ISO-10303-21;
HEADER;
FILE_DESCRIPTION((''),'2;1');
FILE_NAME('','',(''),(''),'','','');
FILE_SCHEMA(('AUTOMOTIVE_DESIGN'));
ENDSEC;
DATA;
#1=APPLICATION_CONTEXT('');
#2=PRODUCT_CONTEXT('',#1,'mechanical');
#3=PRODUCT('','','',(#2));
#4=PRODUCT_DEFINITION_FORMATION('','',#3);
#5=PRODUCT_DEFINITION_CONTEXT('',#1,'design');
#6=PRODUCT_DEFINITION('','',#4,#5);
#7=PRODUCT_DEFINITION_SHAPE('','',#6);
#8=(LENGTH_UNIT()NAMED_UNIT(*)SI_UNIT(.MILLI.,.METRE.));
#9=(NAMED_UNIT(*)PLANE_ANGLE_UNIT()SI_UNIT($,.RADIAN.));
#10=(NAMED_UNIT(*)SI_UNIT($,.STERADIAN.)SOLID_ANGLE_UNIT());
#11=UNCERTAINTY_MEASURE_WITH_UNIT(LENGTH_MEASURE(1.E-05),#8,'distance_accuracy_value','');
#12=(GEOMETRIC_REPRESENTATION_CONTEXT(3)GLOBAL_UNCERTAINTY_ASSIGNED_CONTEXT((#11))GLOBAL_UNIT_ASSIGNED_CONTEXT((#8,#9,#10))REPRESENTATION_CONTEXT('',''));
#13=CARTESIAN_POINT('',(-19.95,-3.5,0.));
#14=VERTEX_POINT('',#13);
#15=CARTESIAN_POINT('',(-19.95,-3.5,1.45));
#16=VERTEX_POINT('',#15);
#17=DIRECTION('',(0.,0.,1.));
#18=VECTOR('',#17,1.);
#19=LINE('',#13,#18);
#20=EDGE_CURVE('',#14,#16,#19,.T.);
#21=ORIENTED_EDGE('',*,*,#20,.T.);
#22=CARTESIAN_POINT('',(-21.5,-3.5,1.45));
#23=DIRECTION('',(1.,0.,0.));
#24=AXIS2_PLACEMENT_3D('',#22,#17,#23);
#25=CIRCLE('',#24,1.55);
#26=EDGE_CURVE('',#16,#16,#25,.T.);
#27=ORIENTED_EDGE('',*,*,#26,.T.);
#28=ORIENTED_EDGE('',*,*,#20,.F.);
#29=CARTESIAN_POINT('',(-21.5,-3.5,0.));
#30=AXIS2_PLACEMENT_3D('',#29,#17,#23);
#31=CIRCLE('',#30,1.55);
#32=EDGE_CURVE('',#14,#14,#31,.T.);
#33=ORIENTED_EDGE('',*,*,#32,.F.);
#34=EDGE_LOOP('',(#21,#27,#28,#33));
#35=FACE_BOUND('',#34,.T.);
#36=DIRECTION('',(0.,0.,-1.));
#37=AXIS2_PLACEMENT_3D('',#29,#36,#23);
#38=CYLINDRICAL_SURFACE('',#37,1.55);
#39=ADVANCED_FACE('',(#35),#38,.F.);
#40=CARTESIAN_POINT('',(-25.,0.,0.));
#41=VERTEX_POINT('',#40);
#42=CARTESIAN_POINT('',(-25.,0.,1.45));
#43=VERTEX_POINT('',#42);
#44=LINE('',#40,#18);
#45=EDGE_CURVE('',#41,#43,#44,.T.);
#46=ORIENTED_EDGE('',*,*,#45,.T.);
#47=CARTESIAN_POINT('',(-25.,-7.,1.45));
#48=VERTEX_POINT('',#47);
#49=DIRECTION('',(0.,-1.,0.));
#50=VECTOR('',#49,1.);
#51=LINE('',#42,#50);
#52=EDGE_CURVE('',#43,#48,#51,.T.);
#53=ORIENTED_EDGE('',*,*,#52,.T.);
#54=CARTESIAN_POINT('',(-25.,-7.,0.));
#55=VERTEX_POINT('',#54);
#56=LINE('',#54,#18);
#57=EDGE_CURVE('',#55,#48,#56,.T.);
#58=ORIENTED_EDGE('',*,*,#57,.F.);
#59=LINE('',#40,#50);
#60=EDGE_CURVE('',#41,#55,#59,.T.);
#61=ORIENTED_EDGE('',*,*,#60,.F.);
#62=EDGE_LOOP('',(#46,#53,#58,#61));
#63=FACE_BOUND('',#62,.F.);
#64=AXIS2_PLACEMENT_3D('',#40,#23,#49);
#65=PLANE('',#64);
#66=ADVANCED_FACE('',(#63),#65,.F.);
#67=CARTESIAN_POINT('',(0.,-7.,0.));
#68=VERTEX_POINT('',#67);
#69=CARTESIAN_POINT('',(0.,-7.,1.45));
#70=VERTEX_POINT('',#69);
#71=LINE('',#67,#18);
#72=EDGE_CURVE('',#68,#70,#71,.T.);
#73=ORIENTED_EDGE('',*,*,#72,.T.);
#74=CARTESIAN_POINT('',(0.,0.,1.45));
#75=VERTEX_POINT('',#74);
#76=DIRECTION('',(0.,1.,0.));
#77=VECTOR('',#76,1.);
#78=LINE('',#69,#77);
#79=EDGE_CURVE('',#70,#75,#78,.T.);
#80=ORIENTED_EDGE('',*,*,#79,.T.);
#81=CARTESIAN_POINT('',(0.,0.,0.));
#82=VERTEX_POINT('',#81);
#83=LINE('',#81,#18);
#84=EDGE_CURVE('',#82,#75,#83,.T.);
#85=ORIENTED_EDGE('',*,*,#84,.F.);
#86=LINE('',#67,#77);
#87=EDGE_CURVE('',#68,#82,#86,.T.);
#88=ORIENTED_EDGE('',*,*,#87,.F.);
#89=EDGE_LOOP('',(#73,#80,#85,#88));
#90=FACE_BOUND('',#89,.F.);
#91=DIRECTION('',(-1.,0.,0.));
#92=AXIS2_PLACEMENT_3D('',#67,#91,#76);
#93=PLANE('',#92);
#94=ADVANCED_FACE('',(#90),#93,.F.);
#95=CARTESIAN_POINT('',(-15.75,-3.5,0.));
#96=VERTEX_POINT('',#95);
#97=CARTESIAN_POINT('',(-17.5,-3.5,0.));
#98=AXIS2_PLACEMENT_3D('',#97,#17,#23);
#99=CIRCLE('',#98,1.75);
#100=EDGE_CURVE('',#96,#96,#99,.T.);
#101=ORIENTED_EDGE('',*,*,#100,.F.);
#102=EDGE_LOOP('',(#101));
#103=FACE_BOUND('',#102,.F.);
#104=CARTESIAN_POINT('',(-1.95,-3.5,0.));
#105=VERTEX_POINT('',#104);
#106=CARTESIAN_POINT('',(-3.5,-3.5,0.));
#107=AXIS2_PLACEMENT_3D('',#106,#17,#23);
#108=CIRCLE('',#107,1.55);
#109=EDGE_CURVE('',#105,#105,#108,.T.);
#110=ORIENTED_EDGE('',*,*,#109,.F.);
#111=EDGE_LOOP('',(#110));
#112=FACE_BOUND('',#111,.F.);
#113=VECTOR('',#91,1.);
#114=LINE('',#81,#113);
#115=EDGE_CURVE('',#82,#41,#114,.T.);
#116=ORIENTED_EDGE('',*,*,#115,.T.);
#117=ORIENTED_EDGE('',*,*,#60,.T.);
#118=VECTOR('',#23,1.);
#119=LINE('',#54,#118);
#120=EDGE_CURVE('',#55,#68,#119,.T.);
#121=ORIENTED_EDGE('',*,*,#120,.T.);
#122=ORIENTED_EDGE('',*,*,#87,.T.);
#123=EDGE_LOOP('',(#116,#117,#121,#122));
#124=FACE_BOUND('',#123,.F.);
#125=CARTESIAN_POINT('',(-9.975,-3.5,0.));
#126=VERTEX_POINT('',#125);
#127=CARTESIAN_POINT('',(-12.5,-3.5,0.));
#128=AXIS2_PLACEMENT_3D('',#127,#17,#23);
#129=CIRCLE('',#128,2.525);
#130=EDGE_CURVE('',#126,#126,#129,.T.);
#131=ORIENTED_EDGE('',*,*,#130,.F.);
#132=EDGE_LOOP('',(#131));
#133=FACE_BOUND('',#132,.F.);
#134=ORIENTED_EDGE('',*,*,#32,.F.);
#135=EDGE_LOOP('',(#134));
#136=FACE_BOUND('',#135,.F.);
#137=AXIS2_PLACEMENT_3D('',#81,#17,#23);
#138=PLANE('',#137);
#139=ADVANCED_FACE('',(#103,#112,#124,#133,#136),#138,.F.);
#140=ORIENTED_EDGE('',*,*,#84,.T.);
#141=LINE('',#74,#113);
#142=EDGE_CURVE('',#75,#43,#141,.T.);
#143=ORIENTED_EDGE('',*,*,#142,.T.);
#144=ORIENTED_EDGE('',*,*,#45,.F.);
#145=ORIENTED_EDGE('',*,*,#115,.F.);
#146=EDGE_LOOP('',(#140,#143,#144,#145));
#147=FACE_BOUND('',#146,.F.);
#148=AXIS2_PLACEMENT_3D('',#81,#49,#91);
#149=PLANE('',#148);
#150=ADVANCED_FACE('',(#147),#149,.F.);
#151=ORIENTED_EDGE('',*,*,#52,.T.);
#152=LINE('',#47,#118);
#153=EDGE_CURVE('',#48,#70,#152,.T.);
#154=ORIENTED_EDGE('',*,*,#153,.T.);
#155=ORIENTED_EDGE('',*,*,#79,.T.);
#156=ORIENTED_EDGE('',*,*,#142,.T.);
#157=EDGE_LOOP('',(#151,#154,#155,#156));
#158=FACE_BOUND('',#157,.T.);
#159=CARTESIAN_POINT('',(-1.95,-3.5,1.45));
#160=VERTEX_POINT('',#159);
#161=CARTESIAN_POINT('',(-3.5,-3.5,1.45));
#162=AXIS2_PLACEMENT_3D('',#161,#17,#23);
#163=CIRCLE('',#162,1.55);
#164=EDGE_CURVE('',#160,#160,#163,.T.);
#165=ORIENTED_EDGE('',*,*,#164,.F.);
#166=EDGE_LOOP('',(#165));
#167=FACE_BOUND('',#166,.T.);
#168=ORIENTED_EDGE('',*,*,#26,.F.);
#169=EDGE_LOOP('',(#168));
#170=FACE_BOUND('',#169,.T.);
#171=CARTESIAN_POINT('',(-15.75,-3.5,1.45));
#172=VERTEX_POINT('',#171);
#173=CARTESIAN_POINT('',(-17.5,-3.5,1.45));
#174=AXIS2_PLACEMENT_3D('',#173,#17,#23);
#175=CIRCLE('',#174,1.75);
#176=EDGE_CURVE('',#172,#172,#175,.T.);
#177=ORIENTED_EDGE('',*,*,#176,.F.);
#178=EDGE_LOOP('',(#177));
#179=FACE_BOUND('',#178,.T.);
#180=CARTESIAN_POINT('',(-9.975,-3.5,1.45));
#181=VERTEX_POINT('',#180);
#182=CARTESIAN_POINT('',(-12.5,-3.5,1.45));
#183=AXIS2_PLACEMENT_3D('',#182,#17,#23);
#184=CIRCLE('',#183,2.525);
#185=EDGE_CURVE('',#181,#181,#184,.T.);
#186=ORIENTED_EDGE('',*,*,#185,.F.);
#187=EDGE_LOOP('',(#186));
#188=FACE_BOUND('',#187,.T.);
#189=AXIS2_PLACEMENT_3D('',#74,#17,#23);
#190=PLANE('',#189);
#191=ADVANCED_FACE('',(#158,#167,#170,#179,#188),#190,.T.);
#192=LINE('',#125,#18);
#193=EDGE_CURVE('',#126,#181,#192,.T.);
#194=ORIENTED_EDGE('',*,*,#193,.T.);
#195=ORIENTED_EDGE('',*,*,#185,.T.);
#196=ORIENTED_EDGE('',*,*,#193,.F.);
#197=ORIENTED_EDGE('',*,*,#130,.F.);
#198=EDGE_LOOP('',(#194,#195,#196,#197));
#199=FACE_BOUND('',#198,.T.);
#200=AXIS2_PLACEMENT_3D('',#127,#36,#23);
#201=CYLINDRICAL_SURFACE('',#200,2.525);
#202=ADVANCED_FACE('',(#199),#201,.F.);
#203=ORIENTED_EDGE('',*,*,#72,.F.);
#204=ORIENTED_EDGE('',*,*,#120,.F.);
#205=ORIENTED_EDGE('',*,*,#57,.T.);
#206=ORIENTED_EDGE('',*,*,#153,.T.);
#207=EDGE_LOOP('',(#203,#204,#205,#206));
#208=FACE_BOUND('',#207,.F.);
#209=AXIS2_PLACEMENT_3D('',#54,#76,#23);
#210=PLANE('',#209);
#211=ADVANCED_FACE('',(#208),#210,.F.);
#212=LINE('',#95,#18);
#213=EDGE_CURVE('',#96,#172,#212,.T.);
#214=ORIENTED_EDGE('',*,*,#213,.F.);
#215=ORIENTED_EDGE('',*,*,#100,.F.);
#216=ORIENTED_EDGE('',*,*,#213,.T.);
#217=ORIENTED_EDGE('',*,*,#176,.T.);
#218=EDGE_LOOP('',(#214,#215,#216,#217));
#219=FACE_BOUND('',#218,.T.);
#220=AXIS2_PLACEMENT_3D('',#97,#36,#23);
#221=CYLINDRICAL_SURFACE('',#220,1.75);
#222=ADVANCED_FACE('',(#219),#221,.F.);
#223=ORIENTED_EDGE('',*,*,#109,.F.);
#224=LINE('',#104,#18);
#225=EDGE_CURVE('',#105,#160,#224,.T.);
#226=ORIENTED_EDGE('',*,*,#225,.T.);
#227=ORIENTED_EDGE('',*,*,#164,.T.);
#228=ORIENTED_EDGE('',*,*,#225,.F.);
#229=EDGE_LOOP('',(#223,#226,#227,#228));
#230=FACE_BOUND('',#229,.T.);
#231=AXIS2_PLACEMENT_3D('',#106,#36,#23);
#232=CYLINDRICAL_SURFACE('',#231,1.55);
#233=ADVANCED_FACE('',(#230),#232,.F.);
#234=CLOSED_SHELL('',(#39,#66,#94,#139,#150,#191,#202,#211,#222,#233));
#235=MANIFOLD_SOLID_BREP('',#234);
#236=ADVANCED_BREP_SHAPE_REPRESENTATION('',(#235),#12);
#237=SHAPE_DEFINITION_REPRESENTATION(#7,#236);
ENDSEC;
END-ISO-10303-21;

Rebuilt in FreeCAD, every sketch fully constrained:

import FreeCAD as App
import Part
import Sketcher

V = App.Vector


def add_polygon(sketch, points):
    """Adds a closed chain of lines whose ends are joined by coincident constraints."""
    first, n = sketch.GeometryCount, len(points)
    for a, b in zip(points, points[1:] + points[:1]):
        sketch.addGeometry(Part.LineSegment(App.Vector(*a, 0), App.Vector(*b, 0)), False)
    for i in range(n):
        sketch.addConstraint(Sketcher.Constraint("Coincident", first + i, 2, first + (i + 1) % n, 1))

doc = App.newDocument("Part")
body = doc.addObject("PartDesign::Body", "Body")

# Sketch on XY plane
sketch1 = body.newObject("Sketcher::SketchObject", "Sketch")
sketch1.AttachmentSupport = (doc.getObject("XY_Plane"), [""])
sketch1.MapMode = "FlatFace"
add_polygon(sketch1, [(0, -7), (0, 0), (-25, 0), (-25, -7)])  # lines 0-3
sketch1.addGeometry(Part.Circle(V(-21.5, -3.5, 0), V(0, 0, 1), 1.6), False)  # 4
sketch1.addGeometry(Part.Circle(V(-17.5, -3.5, 0), V(0, 0, 1), 1.8), False)  # 5
sketch1.addGeometry(Part.Circle(V(-12.5, -3.5, 0), V(0, 0, 1), 2.5), False)  # 6
sketch1.addGeometry(Part.Circle(V(-3.5, -3.5, 0), V(0, 0, 1), 1.6), False)  # 7
sketch1.addConstraint([
    Sketcher.Constraint("Vertical", 0),
    Sketcher.Constraint("Horizontal", 1),
    Sketcher.Constraint("Vertical", 2),
    Sketcher.Constraint("Horizontal", 3),
    Sketcher.Constraint("Coincident", 0, 2, -1, 1),
    Sketcher.Constraint("Equal", 4, 7),
    Sketcher.Constraint("Horizontal", 4, 3, 5, 3),
    Sketcher.Constraint("Horizontal", 5, 3, 6, 3),
    Sketcher.Constraint("Horizontal", 6, 3, 7, 3),
    Sketcher.Constraint("Diameter", 4, 3.1),
    Sketcher.Constraint("Diameter", 5, 3.5),
    Sketcher.Constraint("Diameter", 6, 5.05),
    Sketcher.Constraint("DistanceX", 1, 2, 1, 1, 25.0),
    Sketcher.Constraint("DistanceY", 0, 1, 0, 2, 7.0),
    Sketcher.Constraint("DistanceX", 4, 3, 5, 3, 4.0),
    Sketcher.Constraint("DistanceX", 5, 3, 6, 3, 5.0),
    Sketcher.Constraint("DistanceX", 6, 3, 7, 3, 9.0),
    Sketcher.Constraint("DistanceX", 4, 3, -1, 1, 21.5),
    Sketcher.Constraint("DistanceY", 4, 3, -1, 1, 3.5),
])
pad1 = body.newObject("PartDesign::Pad", "Pad")
pad1.Profile = sketch1
pad1.Length = 1.45

doc.recompute()
